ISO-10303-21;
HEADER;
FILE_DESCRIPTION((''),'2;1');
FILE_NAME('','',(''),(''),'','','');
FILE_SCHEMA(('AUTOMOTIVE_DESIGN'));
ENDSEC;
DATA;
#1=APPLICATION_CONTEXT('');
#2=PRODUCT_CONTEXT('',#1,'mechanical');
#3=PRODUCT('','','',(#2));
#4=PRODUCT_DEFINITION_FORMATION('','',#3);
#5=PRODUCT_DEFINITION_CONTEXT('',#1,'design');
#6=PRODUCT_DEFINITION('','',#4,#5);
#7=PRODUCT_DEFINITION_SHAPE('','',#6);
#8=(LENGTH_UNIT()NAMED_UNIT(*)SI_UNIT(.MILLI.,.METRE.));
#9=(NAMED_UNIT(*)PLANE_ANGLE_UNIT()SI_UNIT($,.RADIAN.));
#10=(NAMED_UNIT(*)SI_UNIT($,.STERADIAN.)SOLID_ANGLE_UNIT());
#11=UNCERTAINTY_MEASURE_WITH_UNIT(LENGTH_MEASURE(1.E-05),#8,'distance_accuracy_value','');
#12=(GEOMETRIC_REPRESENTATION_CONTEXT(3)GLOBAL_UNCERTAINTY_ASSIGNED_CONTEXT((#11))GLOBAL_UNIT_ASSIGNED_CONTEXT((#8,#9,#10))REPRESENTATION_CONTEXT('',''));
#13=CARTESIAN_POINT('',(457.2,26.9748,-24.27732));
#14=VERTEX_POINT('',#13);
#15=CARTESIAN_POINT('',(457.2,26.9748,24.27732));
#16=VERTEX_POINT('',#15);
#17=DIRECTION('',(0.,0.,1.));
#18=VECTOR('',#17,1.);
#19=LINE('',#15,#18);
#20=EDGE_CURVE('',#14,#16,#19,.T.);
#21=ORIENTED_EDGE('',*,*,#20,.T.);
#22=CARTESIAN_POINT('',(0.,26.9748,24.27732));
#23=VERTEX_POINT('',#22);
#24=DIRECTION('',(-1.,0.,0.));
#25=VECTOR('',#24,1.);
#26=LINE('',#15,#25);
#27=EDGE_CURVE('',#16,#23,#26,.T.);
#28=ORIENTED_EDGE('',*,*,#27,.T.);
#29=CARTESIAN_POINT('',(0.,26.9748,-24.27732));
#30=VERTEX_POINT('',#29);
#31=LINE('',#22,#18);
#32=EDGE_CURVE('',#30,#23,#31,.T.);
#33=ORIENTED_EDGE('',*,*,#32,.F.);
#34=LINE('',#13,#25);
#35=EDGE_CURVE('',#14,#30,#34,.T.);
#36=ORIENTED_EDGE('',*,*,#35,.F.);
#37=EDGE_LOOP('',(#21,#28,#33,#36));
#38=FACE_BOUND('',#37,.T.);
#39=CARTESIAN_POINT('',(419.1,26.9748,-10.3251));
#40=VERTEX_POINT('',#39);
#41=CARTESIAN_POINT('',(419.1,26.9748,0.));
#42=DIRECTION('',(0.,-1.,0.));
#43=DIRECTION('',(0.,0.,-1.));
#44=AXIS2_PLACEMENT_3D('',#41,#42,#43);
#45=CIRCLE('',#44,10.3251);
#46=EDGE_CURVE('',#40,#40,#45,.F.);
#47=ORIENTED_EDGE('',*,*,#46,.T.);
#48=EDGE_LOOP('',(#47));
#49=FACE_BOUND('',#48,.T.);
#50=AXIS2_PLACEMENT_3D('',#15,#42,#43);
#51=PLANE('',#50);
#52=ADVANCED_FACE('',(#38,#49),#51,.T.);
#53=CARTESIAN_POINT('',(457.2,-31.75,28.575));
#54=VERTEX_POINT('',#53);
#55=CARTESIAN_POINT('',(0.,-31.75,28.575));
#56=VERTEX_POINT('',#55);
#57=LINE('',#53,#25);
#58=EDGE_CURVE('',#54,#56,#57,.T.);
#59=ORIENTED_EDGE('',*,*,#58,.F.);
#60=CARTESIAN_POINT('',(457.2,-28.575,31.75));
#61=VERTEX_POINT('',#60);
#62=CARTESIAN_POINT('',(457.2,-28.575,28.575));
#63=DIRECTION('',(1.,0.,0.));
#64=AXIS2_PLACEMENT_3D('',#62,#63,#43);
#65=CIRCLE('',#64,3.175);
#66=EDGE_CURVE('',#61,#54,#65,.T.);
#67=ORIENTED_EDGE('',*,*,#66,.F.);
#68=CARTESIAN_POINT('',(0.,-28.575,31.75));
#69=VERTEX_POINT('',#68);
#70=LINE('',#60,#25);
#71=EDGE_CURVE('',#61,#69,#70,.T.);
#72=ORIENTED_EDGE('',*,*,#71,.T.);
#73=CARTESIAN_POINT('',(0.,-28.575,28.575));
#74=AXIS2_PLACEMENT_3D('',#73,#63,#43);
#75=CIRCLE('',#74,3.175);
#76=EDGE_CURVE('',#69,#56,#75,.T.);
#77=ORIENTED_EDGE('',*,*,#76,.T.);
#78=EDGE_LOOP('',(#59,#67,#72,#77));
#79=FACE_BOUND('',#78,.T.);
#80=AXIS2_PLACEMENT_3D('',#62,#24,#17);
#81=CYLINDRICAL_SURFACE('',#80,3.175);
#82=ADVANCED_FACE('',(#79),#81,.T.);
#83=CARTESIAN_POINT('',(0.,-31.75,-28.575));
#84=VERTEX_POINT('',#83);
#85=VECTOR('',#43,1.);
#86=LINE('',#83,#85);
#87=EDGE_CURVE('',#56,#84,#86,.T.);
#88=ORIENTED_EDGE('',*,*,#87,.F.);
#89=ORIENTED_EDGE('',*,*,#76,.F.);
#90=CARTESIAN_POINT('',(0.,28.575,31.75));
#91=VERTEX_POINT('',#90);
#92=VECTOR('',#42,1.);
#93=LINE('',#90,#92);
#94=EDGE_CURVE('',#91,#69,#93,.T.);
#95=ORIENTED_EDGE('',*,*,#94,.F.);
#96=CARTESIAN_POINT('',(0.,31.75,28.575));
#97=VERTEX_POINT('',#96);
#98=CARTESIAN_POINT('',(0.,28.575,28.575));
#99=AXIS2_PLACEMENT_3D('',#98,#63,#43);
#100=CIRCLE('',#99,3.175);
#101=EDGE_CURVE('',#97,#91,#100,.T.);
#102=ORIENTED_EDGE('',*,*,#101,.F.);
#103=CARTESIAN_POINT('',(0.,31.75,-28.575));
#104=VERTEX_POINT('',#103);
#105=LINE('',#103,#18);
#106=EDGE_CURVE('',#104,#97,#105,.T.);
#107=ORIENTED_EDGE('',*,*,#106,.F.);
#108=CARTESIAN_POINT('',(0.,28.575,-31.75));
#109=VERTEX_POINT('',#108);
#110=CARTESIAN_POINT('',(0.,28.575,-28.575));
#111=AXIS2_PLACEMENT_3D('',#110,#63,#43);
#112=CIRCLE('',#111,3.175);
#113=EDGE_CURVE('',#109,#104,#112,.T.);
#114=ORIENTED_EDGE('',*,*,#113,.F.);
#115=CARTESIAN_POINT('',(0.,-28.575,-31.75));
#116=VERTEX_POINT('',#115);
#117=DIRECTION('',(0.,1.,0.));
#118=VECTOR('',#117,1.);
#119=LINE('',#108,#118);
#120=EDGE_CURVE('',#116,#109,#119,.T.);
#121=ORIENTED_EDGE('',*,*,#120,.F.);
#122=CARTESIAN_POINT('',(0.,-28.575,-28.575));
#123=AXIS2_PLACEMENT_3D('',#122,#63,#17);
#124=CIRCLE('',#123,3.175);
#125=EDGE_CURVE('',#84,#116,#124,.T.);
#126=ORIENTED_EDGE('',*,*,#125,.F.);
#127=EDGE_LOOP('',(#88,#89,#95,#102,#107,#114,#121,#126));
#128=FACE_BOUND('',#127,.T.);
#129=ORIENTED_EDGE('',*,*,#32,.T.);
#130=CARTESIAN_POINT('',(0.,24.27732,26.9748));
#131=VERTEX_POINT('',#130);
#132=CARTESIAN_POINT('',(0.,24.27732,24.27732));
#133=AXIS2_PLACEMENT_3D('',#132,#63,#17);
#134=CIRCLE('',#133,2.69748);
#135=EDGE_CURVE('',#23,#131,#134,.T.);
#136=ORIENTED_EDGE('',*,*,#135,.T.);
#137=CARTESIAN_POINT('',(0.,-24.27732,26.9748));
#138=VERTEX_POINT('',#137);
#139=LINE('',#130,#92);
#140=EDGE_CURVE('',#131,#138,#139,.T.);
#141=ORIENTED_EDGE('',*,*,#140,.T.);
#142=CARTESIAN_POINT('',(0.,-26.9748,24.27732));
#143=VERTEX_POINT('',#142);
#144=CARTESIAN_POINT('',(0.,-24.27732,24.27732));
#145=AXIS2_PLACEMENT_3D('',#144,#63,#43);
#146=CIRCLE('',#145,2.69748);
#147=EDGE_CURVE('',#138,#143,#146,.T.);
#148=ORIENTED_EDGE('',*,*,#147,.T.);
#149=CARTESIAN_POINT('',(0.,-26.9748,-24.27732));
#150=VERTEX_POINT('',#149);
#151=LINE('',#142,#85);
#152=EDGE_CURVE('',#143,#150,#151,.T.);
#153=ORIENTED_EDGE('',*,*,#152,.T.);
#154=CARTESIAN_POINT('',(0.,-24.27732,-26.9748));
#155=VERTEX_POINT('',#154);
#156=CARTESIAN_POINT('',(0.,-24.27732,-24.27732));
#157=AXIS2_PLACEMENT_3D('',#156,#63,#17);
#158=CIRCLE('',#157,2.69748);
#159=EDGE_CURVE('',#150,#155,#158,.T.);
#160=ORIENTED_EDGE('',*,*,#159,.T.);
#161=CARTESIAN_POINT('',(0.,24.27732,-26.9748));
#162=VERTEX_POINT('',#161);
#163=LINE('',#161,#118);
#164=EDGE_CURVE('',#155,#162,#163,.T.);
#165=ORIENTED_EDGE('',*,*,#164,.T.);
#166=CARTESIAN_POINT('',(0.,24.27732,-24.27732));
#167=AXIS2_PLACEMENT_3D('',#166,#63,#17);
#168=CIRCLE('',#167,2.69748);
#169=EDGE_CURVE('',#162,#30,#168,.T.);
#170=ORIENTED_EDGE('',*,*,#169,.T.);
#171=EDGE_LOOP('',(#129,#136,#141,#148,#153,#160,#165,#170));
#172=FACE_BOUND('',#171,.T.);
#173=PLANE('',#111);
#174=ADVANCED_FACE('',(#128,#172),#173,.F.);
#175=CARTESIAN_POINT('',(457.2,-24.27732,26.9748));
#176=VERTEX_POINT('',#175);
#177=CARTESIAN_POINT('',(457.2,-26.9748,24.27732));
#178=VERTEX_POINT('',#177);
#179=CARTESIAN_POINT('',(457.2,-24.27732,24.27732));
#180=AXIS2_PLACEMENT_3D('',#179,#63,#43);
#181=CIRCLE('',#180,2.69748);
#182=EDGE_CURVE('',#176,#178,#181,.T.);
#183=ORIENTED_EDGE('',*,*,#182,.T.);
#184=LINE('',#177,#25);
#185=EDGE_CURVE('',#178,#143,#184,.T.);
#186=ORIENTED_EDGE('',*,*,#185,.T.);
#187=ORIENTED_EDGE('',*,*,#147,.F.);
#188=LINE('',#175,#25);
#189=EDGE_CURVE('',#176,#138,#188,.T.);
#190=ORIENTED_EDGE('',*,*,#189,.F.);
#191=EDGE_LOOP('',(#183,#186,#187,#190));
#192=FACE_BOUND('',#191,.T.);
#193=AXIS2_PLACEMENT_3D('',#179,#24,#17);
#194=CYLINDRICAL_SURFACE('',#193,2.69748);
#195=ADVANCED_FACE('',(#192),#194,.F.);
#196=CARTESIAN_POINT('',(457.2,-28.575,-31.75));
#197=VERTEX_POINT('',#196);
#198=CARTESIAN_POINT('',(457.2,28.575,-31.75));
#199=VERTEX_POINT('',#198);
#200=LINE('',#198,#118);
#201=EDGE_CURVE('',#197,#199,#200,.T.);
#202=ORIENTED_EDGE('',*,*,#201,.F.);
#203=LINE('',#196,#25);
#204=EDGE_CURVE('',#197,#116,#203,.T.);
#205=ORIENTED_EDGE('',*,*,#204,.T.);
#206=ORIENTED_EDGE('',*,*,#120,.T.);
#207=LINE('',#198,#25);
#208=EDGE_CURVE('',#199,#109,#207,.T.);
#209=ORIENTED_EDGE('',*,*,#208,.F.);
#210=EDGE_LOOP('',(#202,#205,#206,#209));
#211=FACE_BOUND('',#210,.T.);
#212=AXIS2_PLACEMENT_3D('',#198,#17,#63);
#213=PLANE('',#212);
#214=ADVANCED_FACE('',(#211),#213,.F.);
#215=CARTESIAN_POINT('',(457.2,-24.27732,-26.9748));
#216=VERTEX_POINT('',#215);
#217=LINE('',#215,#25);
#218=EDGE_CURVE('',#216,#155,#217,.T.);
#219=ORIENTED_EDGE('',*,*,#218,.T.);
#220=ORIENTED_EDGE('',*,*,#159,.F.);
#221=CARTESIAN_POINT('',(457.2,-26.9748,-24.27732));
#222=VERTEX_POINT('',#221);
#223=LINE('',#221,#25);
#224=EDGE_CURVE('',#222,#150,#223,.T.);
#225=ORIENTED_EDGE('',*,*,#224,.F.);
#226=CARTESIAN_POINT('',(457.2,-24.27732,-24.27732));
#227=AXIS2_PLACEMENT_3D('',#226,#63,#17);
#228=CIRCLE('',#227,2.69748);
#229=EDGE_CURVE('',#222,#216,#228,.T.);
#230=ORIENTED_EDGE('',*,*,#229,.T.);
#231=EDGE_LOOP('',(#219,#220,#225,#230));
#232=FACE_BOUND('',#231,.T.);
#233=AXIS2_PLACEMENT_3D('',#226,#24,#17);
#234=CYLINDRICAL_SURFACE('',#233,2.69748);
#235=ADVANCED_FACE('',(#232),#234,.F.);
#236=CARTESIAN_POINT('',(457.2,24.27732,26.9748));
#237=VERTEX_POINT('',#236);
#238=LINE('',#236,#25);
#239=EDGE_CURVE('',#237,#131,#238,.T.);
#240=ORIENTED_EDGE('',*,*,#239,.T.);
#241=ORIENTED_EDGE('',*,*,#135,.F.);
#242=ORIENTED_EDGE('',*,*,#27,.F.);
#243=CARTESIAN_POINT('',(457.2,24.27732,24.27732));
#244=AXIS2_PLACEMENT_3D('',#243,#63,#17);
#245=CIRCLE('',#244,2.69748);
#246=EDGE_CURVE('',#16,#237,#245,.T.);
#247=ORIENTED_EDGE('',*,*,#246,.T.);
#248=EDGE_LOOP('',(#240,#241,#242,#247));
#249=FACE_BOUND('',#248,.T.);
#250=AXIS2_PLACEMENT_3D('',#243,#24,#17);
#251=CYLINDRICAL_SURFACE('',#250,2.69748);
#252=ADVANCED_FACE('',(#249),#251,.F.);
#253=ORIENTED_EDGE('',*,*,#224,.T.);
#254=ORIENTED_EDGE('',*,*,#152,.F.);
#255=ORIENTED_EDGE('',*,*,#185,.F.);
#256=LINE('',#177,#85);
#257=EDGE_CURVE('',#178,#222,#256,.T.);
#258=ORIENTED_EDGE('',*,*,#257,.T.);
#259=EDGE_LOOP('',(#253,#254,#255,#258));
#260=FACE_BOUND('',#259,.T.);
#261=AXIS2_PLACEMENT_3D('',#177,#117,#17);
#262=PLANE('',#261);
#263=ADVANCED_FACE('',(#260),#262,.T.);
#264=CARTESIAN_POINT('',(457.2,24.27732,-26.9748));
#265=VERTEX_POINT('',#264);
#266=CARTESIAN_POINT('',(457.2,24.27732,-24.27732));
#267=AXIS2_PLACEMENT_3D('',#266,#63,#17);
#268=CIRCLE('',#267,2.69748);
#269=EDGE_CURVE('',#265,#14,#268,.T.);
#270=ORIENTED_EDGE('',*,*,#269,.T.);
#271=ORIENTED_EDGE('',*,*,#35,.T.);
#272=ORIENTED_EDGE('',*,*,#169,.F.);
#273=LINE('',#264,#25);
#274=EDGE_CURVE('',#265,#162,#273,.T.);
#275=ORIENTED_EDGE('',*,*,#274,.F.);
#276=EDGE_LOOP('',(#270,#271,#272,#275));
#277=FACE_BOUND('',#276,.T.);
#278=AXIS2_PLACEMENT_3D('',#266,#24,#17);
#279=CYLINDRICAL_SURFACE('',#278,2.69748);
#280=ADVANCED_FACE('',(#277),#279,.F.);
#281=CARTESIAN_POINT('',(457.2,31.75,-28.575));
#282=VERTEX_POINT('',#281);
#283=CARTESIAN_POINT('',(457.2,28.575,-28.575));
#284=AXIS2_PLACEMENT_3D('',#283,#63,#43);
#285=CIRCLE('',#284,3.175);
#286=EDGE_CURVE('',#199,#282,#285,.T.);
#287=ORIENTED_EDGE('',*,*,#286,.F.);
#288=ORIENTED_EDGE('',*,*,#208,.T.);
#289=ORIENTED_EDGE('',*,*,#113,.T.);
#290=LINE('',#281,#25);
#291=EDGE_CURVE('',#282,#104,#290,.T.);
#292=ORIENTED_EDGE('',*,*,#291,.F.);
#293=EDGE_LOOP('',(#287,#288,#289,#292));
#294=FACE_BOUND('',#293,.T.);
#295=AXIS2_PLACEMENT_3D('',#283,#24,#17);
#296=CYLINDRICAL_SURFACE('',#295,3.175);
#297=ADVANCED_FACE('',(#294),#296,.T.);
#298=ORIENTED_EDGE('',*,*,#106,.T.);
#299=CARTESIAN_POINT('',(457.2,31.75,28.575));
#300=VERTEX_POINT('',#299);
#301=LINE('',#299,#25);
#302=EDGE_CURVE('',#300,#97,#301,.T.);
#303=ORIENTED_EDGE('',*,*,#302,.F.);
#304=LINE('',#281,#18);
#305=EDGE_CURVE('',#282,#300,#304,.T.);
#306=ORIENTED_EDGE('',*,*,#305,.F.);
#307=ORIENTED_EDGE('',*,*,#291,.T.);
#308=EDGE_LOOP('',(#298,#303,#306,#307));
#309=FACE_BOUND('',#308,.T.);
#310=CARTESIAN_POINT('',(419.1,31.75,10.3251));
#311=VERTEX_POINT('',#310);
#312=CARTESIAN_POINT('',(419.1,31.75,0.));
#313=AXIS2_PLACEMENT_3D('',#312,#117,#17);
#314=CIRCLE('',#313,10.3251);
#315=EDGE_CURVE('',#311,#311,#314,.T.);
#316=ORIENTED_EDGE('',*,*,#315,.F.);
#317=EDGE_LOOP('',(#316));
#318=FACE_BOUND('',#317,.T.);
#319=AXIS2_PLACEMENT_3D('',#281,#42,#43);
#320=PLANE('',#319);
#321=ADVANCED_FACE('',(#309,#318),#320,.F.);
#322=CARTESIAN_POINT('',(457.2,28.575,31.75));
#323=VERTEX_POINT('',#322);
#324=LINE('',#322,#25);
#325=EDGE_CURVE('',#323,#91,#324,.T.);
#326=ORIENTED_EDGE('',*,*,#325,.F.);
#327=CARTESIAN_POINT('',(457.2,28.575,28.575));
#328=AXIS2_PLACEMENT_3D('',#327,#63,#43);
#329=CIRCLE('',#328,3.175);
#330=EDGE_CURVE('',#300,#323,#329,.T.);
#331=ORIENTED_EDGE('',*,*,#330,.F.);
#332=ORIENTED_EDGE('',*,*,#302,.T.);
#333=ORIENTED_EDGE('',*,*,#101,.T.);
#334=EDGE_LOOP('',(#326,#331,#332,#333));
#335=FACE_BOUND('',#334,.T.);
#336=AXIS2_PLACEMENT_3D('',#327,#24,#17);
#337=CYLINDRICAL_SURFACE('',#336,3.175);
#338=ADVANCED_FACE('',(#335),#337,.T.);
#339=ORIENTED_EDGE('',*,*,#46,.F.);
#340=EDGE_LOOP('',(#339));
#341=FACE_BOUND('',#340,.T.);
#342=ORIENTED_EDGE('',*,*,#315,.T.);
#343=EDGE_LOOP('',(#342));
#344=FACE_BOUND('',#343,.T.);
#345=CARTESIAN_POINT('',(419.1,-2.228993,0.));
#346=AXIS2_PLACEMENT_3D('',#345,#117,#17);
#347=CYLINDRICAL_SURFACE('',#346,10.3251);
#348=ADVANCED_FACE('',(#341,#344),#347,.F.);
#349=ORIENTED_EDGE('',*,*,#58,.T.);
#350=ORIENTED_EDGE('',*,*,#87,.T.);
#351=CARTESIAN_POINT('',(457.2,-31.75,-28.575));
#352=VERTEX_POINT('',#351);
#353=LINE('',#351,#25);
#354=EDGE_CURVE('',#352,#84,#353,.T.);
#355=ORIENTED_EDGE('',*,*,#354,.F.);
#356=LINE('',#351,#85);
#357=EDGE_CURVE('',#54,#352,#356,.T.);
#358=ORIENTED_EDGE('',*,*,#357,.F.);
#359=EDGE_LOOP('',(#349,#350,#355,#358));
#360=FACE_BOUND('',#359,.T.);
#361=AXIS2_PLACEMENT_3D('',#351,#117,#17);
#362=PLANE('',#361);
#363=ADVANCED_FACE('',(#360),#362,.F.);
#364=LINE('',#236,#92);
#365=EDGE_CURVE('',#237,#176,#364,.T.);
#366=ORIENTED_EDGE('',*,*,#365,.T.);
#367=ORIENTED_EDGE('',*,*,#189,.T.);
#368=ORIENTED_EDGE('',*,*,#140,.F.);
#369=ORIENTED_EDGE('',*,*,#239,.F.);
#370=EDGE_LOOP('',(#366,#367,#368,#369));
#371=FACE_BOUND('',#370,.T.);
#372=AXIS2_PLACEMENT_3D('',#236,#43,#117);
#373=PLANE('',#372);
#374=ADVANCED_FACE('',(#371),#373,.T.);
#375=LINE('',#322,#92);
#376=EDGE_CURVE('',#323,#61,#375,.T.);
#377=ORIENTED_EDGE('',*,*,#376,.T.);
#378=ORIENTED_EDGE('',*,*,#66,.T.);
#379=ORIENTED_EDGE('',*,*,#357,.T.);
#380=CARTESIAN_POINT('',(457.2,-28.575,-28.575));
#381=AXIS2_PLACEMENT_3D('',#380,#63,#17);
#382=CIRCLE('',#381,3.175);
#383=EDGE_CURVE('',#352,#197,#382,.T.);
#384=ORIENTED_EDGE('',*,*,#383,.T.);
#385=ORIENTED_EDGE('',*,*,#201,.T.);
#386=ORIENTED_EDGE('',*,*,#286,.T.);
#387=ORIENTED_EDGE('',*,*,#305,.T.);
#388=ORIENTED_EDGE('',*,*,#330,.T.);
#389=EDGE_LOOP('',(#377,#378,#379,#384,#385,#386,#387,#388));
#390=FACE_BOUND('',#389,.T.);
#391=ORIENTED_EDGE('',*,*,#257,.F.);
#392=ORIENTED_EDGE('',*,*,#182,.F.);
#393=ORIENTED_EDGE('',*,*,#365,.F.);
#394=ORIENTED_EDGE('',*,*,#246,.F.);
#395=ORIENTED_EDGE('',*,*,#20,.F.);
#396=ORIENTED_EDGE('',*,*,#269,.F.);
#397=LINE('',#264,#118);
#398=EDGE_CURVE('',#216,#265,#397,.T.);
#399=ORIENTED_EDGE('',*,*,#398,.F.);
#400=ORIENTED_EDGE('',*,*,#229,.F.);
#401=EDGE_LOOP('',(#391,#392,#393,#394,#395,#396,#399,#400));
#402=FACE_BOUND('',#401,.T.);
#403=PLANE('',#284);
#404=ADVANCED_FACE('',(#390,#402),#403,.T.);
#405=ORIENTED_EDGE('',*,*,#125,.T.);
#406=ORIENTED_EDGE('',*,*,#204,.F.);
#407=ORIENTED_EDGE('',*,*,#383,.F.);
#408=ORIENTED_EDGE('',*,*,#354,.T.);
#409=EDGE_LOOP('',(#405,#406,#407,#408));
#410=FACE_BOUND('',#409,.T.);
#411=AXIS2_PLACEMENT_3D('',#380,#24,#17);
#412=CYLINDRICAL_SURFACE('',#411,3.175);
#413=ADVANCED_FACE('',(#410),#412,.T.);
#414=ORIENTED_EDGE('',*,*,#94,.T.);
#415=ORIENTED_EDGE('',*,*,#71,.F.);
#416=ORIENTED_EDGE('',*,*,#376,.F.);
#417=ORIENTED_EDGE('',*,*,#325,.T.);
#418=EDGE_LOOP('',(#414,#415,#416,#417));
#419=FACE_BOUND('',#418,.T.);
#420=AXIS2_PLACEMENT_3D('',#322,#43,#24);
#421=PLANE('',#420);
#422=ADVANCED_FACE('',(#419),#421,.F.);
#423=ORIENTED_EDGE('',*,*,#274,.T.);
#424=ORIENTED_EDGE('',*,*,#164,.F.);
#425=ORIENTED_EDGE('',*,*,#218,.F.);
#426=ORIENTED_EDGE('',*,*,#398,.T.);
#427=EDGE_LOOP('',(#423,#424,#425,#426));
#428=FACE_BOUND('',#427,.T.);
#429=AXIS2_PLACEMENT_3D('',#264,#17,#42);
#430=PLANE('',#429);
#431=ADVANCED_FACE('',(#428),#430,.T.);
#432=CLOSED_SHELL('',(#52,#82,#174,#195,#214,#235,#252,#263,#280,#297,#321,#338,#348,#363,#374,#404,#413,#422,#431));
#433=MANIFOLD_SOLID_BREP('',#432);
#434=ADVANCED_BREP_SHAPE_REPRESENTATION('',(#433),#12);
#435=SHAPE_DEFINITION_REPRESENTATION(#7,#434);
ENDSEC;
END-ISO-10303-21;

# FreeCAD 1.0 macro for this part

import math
import FreeCAD as App
import Part
import Sketcher

V = App.Vector
Q = App.Units.Quantity

doc = App.newDocument("Part")
body = doc.addObject("PartDesign::Body", "Body")

# Sketch on YZ plane
sketch1 = doc.addObject("Sketcher::SketchObject", "Sketch")
body.addObject(sketch1)
sketch1.AttachmentSupport = (doc.YZ_Plane, [""])
sketch1.MapMode = "FlatFace"
sketch1.addGeometry([
    Part.LineSegment(V(-28.6, -31.8, 0), V(28.6, -31.8, 0)),  # 0
    Part.ArcOfCircle(Part.Circle(V(28.6, -28.6, 0), V(0, 0, 1), 3.2), math.radians(-90), math.radians(0)),  # 1
    Part.LineSegment(V(31.8, -28.6, 0), V(31.8, 28.6, 0)),  # 2
    Part.ArcOfCircle(Part.Circle(V(28.6, 28.6, 0), V(0, 0, 1), 3.2), math.radians(0), math.radians(90)),  # 3
    Part.LineSegment(V(28.6, 31.8, 0), V(-28.6, 31.8, 0)),  # 4
    Part.ArcOfCircle(Part.Circle(V(-28.6, 28.6, 0), V(0, 0, 1), 3.2), math.radians(90), math.radians(180)),  # 5
    Part.LineSegment(V(-31.8, 28.6, 0), V(-31.8, -28.6, 0)),  # 6
    Part.ArcOfCircle(Part.Circle(V(-28.6, -28.6, 0), V(0, 0, 1), 3.2), math.radians(-180), math.radians(-90)),  # 7
    Part.ArcOfCircle(Part.Circle(V(24.3, 24.3, 0), V(0, 0, 1), 2.7), math.radians(0), math.radians(90)),  # 8
    Part.LineSegment(V(27, 24.3, 0), V(27, -24.3, 0)),  # 9
    Part.ArcOfCircle(Part.Circle(V(24.3, -24.3, 0), V(0, 0, 1), 2.7), math.radians(-90), math.radians(0)),  # 10
    Part.LineSegment(V(24.3, -27, 0), V(-24.3, -27, 0)),  # 11
    Part.ArcOfCircle(Part.Circle(V(-24.3, -24.3, 0), V(0, 0, 1), 2.7), math.radians(180), math.radians(270)),  # 12
    Part.LineSegment(V(-27, -24.3, 0), V(-27, 24.3, 0)),  # 13
    Part.ArcOfCircle(Part.Circle(V(-24.3, 24.3, 0), V(0, 0, 1), 2.7), math.radians(90), math.radians(180)),  # 14
    Part.LineSegment(V(-24.3, 27, 0), V(24.3, 27, 0)),  # 15
], False)
sketch1.addConstraint([
    Sketcher.Constraint("Tangent", 0, 2, 1, 1),
    Sketcher.Constraint("Tangent", 1, 2, 2, 1),
    Sketcher.Constraint("Tangent", 2, 2, 3, 1),
    Sketcher.Constraint("Tangent", 3, 2, 4, 1),
    Sketcher.Constraint("Tangent", 4, 2, 5, 1),
    Sketcher.Constraint("Tangent", 5, 2, 6, 1),
    Sketcher.Constraint("Tangent", 6, 2, 7, 1),
    Sketcher.Constraint("Tangent", 7, 2, 0, 1),
    Sketcher.Constraint("Tangent", 8, 1, 9, 1),
    Sketcher.Constraint("Tangent", 9, 2, 10, 2),
    Sketcher.Constraint("Tangent", 10, 1, 11, 1),
    Sketcher.Constraint("Tangent", 11, 2, 12, 2),
    Sketcher.Constraint("Tangent", 12, 1, 13, 1),
    Sketcher.Constraint("Tangent", 13, 2, 14, 2),
    Sketcher.Constraint("Tangent", 14, 1, 15, 1),
    Sketcher.Constraint("Tangent", 15, 2, 8, 2),
    Sketcher.Constraint("Horizontal", 0),
    Sketcher.Constraint("Vertical", 2),
    Sketcher.Constraint("Horizontal", 4),
    Sketcher.Constraint("Vertical", 6),
    Sketcher.Constraint("Vertical", 9),
    Sketcher.Constraint("Horizontal", 11),
    Sketcher.Constraint("Vertical", 13),
    Sketcher.Constraint("Horizontal", 15),
    Sketcher.Constraint("Equal", 1, 3),
    Sketcher.Constraint("Equal", 3, 5),
    Sketcher.Constraint("Equal", 5, 7),
    Sketcher.Constraint("Equal", 8, 10),
    Sketcher.Constraint("Equal", 10, 12),
    Sketcher.Constraint("Equal", 12, 14),
    Sketcher.Constraint("Symmetric", 1, 3, 5, 3, -1, 1),
    Sketcher.Constraint("Symmetric", 8, 3, 12, 3, -1, 1),
    Sketcher.Constraint("Equal", 4, 2),
    Sketcher.Constraint("Equal", 15, 9),
    Sketcher.Constraint("Radius", 1, Q("0.125 in")),
    Sketcher.Constraint("DistanceX", 0, 1, 0, 2, Q("2.25 in")),
    Sketcher.Constraint("Radius", 8, Q("0.1062 in")),
    Sketcher.Constraint("DistanceX", 11, 2, 11, 1, Q("1.9116 in")),
])
pad1 = doc.addObject("PartDesign::Pad", "Pad")
body.addObject(pad1)
pad1.Profile = sketch1
pad1.Length = Q("18 in")

# Sketch on XZ plane
sketch2 = doc.addObject("Sketcher::SketchObject", "Sketch001")
body.addObject(sketch2)
sketch2.AttachmentSupport = (doc.XZ_Plane, [""])
sketch2.MapMode = "FlatFace"
sketch2.AttachmentOffset = App.Placement(V(0, 0, -1.25 * 25.4), App.Rotation())
sketch2.addGeometry(Part.Circle(V(419, 0, 0), V(0, 0, 1), 10), False)
sketch2.addConstraint([
    Sketcher.Constraint("PointOnObject", 0, 3, -1),
    Sketcher.Constraint("Diameter", 0, Q("0.813 in")),
    Sketcher.Constraint("DistanceX", -1, 1, 0, 3, Q("16.5 in")),
])
pocket1 = doc.addObject("PartDesign::Pocket", "Pocket")
body.addObject(pocket1)
pocket1.Profile = sketch2
pocket1.Length = Q("0.188 in")
pocket1.Reversed = True

doc.recompute()
